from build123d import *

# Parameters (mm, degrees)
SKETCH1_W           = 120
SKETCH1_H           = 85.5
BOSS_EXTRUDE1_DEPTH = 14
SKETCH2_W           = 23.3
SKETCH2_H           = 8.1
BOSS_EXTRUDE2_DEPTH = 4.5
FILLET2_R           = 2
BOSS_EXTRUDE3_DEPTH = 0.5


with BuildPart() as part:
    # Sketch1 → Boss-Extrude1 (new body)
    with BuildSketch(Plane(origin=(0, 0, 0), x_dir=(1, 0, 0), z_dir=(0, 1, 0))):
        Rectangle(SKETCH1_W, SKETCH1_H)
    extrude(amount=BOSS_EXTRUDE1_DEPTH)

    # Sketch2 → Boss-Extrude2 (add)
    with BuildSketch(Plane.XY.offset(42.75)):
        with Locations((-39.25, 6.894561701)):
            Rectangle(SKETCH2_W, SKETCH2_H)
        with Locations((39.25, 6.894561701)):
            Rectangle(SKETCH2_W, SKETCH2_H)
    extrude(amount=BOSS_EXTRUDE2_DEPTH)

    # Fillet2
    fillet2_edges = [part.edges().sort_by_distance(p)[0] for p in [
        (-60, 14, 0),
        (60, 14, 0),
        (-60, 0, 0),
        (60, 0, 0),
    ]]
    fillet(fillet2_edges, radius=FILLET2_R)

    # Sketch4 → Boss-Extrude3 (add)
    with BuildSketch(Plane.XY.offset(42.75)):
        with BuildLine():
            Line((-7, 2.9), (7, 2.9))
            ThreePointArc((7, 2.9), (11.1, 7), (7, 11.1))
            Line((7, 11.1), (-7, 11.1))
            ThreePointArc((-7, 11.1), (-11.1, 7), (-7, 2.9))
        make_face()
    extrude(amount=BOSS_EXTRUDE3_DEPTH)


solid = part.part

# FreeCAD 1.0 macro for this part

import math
import FreeCAD as App
import Part
import Sketcher
Q = App.Units.Quantity


def edges_at(feature, points):
    """Names of the edges that pass closest to the given points."""
    edges = feature.Shape.Edges
    near = lambda p: min(range(len(edges)), key=lambda i: edges[i].distToShape(Part.Vertex(*p))[0])
    return sorted({f"Edge{near(p) + 1}" for p in points})

doc = App.newDocument("Part")
body = doc.addObject("PartDesign::Body", "Body")

sketch1 = body.newObject("Sketcher::SketchObject", "Sketch")
sketch1.AttachmentSupport = (doc.getObject("XZ_Plane"), [""])
sketch1.MapMode = "FlatFace"
sketch1.addGeometry(Part.LineSegment(App.Vector(-60, -43, 0), App.Vector(-60, 43, 0)), False)
sketch1.addGeometry(Part.LineSegment(App.Vector(-60, 43, 0), App.Vector(60, 43, 0)), False)
sketch1.addGeometry(Part.LineSegment(App.Vector(60, 43, 0), App.Vector(60, -43, 0)), False)
sketch1.addGeometry(Part.LineSegment(App.Vector(60, -43, 0), App.Vector(-60, -43, 0)), False)
sketch1.addConstraint(Sketcher.Constraint("Coincident", 0, 2, 1, 1))
sketch1.addConstraint(Sketcher.Constraint("Coincident", 1, 2, 2, 1))
sketch1.addConstraint(Sketcher.Constraint("Coincident", 2, 2, 3, 1))
sketch1.addConstraint(Sketcher.Constraint("Coincident", 3, 2, 0, 1))
sketch1.addConstraint(Sketcher.Constraint("Vertical", 0))
sketch1.addConstraint(Sketcher.Constraint("Horizontal", 1))
sketch1.addConstraint(Sketcher.Constraint("Vertical", 2))
sketch1.addConstraint(Sketcher.Constraint("Horizontal", 3))
sketch1.addConstraint(Sketcher.Constraint("Symmetric", 0, 2, 2, 2, -1, 1))
sketch1.addConstraint(Sketcher.Constraint("DistanceX", 1, 1, 1, 2, Q("120 mm")))
sketch1.addConstraint(Sketcher.Constraint("DistanceY", 0, 1, 0, 2, Q("85.5 mm")))
pad1 = body.newObject("PartDesign::Pad", "Pad")
pad1.Profile = sketch1
pad1.Length = 14
pad1.Reversed = True

sketch2 = body.newObject("Sketcher::SketchObject", "Sketch001")
sketch2.AttachmentSupport = (doc.getObject("XY_Plane"), [""])
sketch2.MapMode = "FlatFace"
sketch2.AttachmentOffset = App.Placement(App.Vector(0, 0, 42.75), App.Rotation())
sketch2.addGeometry(Part.LineSegment(App.Vector(-51, 11, 0), App.Vector(-51, 3, 0)), False)
sketch2.addGeometry(Part.LineSegment(App.Vector(-51, 3, 0), App.Vector(-28, 3, 0)), False)
sketch2.addGeometry(Part.LineSegment(App.Vector(-28, 3, 0), App.Vector(-28, 11, 0)), False)
sketch2.addGeometry(Part.LineSegment(App.Vector(-28, 11, 0), App.Vector(-51, 11, 0)), False)
sketch2.addGeometry(Part.LineSegment(App.Vector(28, 11, 0), App.Vector(28, 3, 0)), False)
sketch2.addGeometry(Part.LineSegment(App.Vector(28, 3, 0), App.Vector(51, 3, 0)), False)
sketch2.addGeometry(Part.LineSegment(App.Vector(51, 3, 0), App.Vector(51, 11, 0)), False)
sketch2.addGeometry(Part.LineSegment(App.Vector(51, 11, 0), App.Vector(28, 11, 0)), False)
sketch2.addConstraint(Sketcher.Constraint("Coincident", 0, 2, 1, 1))
sketch2.addConstraint(Sketcher.Constraint("Coincident", 1, 2, 2, 1))
sketch2.addConstraint(Sketcher.Constraint("Coincident", 2, 2, 3, 1))
sketch2.addConstraint(Sketcher.Constraint("Coincident", 3, 2, 0, 1))
sketch2.addConstraint(Sketcher.Constraint("Coincident", 4, 2, 5, 1))
sketch2.addConstraint(Sketcher.Constraint("Coincident", 5, 2, 6, 1))
sketch2.addConstraint(Sketcher.Constraint("Coincident", 6, 2, 7, 1))
sketch2.addConstraint(Sketcher.Constraint("Coincident", 7, 2, 4, 1))
sketch2.addConstraint(Sketcher.Constraint("Vertical", 0))
sketch2.addConstraint(Sketcher.Constraint("Horizontal", 1))
sketch2.addConstraint(Sketcher.Constraint("Vertical", 2))
sketch2.addConstraint(Sketcher.Constraint("Horizontal", 3))
sketch2.addConstraint(Sketcher.Constraint("Vertical", 4))
sketch2.addConstraint(Sketcher.Constraint("Horizontal", 5))
sketch2.addConstraint(Sketcher.Constraint("Vertical", 6))
sketch2.addConstraint(Sketcher.Constraint("Horizontal", 7))
sketch2.addConstraint(Sketcher.Constraint("Symmetric", 1, 2, 4, 2, -2))
sketch2.addConstraint(Sketcher.Constraint("Symmetric", 3, 2, 6, 2, -2))
sketch2.addConstraint(Sketcher.Constraint("DistanceX", 1, 1, 1, 2, Q("23.3 mm")))
sketch2.addConstraint(Sketcher.Constraint("DistanceY", 0, 2, 0, 1, Q("8.1 mm")))
sketch2.addConstraint(Sketcher.Constraint("DistanceX", 0, 2, -1, 1, Q("50.9 mm")))
sketch2.addConstraint(Sketcher.Constraint("DistanceY", -1, 1, 0, 2, Q("2.844562 mm")))
pad2 = body.newObject("PartDesign::Pad", "Pad001")
pad2.Profile = sketch2
pad2.Length = 4.5
doc.recompute()

fillet = body.newObject("PartDesign::Fillet", "Fillet")
fillet.Base = (pad2, edges_at(pad2, [
    (-60, 14, 0),
    (60, 14, 0),
    (-60, 0, 0),
    (60, 0, 0),
]))
fillet.Radius = 2

sketch3 = body.newObject("Sketcher::SketchObject", "Sketch002")
sketch3.AttachmentSupport = (doc.getObject("XY_Plane"), [""])
sketch3.MapMode = "FlatFace"
sketch3.AttachmentOffset = App.Placement(App.Vector(0, 0, 42.75), App.Rotation())
sketch3.addGeometry(Part.LineSegment(App.Vector(-7, 2.9, 0), App.Vector(7, 2.9, 0)), False)
sketch3.addGeometry(Part.ArcOfCircle(Part.Circle(App.Vector(7, 7, 0), App.Vector(0, 0, 1), 4.1), math.radians(-90), math.radians(90)), False)
sketch3.addGeometry(Part.LineSegment(App.Vector(7, 11.1, 0), App.Vector(-7, 11.1, 0)), False)
sketch3.addGeometry(Part.ArcOfCircle(Part.Circle(App.Vector(-7, 7, 0), App.Vector(0, 0, 1), 4.1), math.radians(90), math.radians(270)), False)
sketch3.addConstraint(Sketcher.Constraint("Tangent", 0, 2, 1, 1))
sketch3.addConstraint(Sketcher.Constraint("Tangent", 1, 2, 2, 1))
sketch3.addConstraint(Sketcher.Constraint("Tangent", 2, 2, 3, 1))
sketch3.addConstraint(Sketcher.Constraint("Tangent", 3, 2, 0, 1))
sketch3.addConstraint(Sketcher.Constraint("Horizontal", 0))
sketch3.addConstraint(Sketcher.Constraint("Horizontal", 2))
sketch3.addConstraint(Sketcher.Constraint("Radius", 1, Q("4.1 mm")))
sketch3.addConstraint(Sketcher.Constraint("DistanceX", 0, 1, 0, 2, Q("14 mm")))
sketch3.addConstraint(Sketcher.Constraint("DistanceX", -1, 1, 1, 3, Q("7 mm")))
sketch3.addConstraint(Sketcher.Constraint("DistanceY", -1, 1, 1, 3, Q("7 mm")))
pad3 = body.newObject("PartDesign::Pad", "Pad002")
pad3.Profile = sketch3
pad3.Length = 0.5

doc.recompute()
